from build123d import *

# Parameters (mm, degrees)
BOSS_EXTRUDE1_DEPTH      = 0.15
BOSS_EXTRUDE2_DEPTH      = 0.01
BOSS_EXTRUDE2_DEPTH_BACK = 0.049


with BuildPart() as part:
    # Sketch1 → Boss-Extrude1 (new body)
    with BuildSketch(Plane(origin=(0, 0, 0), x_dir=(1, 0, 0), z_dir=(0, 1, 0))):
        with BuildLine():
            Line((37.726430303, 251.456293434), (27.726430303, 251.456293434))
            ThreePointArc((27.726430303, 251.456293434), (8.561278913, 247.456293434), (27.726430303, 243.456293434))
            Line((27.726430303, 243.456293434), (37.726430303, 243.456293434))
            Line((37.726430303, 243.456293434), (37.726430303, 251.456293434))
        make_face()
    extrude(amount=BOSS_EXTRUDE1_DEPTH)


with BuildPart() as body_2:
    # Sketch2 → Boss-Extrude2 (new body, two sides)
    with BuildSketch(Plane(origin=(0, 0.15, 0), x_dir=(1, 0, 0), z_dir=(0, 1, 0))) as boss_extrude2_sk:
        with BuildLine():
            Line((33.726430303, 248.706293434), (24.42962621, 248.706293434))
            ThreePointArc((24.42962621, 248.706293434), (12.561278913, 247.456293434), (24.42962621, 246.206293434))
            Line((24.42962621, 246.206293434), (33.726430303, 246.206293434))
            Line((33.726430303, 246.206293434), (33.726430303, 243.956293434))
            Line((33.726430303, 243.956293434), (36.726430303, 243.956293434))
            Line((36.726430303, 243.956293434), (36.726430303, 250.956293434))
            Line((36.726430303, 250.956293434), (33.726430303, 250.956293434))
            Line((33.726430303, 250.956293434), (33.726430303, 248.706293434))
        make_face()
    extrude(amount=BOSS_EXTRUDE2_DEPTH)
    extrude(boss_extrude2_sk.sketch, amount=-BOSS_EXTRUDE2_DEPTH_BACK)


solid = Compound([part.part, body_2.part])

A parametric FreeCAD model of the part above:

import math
import FreeCAD as App
import Part
import Sketcher

doc = App.newDocument("Part")
body = doc.addObject("PartDesign::Body", "Body")

# Sketch on XZ plane
sketch1 = body.newObject("Sketcher::SketchObject", "Sketch")
sketch1.AttachmentSupport = (doc.getObject("XZ_Plane"), [""])
sketch1.MapMode = "FlatFace"
sketch1.addGeometry(Part.LineSegment(App.Vector(38, -251, 0), App.Vector(28, -251, 0)), False)
sketch1.addGeometry(Part.ArcOfCircle(Part.Circle(App.Vector(19, -247, 0), App.Vector(0, 0, 1), 10), math.radians(24), math.radians(336)), False)
sketch1.addGeometry(Part.LineSegment(App.Vector(28, -243, 0), App.Vector(38, -243, 0)), False)
sketch1.addGeometry(Part.LineSegment(App.Vector(38, -243, 0), App.Vector(38, -251, 0)), False)
sketch1.addConstraint(Sketcher.Constraint("Coincident", 0, 2, 1, 2))
sketch1.addConstraint(Sketcher.Constraint("Coincident", 1, 1, 2, 1))
sketch1.addConstraint(Sketcher.Constraint("Coincident", 2, 2, 3, 1))
sketch1.addConstraint(Sketcher.Constraint("Coincident", 3, 2, 0, 1))
sketch1.addConstraint(Sketcher.Constraint("Horizontal", 0))
sketch1.addConstraint(Sketcher.Constraint("Horizontal", 2))
sketch1.addConstraint(Sketcher.Constraint("Vertical", 3))
sketch1.addConstraint(Sketcher.Constraint("Vertical", 0, 2, 1, 1))
sketch1.addConstraint(Sketcher.Constraint("Radius", 1, 10.0))
sketch1.addConstraint(Sketcher.Constraint("DistanceX", 0, 2, 0, 1, 10.0))
sketch1.addConstraint(Sketcher.Constraint("DistanceY", 3, 2, 3, 1, 8.0))
sketch1.addConstraint(Sketcher.Constraint("DistanceX", -1, 1, 1, 3, 18.561279))
sketch1.addConstraint(Sketcher.Constraint("DistanceY", 1, 3, -1, 1, 247.456293))
pad1 = body.newObject("PartDesign::Pad", "Pad")
pad1.Profile = sketch1
pad1.Length = 0.15
pad1.Reversed = True
body2 = doc.addObject("PartDesign::Body", "Body001")

# Sketch on XZ plane
sketch2 = body2.newObject("Sketcher::SketchObject", "Sketch001")
sketch2.AttachmentSupport = (doc.getObject("XZ_Plane001"), [""])
sketch2.MapMode = "FlatFace"
sketch2.AttachmentOffset = App.Placement(App.Vector(0, 0, -0.15), App.Rotation())
sketch2.addGeometry(Part.LineSegment(App.Vector(33.7, -248.7, 0), App.Vector(24.4, -248.7, 0)), False)
sketch2.addGeometry(Part.ArcOfCircle(Part.Circle(App.Vector(18.6, -247.5, 0), App.Vector(0, 0, 1), 6), math.radians(12), math.radians(348)), False)
sketch2.addGeometry(Part.LineSegment(App.Vector(24.4, -246.2, 0), App.Vector(33.7, -246.2, 0)), False)
sketch2.addGeometry(Part.LineSegment(App.Vector(33.7, -246.2, 0), App.Vector(33.7, -244, 0)), False)
sketch2.addGeometry(Part.LineSegment(App.Vector(33.7, -244, 0), App.Vector(36.7, -244, 0)), False)
sketch2.addGeometry(Part.LineSegment(App.Vector(36.7, -244, 0), App.Vector(36.7, -251, 0)), False)
sketch2.addGeometry(Part.LineSegment(App.Vector(36.7, -251, 0), App.Vector(33.7, -251, 0)), False)
sketch2.addGeometry(Part.LineSegment(App.Vector(33.7, -251, 0), App.Vector(33.7, -248.7, 0)), False)
sketch2.addConstraint(Sketcher.Constraint("Coincident", 0, 2, 1, 2))
sketch2.addConstraint(Sketcher.Constraint("Coincident", 1, 1, 2, 1))
sketch2.addConstraint(Sketcher.Constraint("Coincident", 2, 2, 3, 1))
sketch2.addConstraint(Sketcher.Constraint("Coincident", 3, 2, 4, 1))
sketch2.addConstraint(Sketcher.Constraint("Coincident", 4, 2, 5, 1))
sketch2.addConstraint(Sketcher.Constraint("Coincident", 5, 2, 6, 1))
sketch2.addConstraint(Sketcher.Constraint("Coincident", 6, 2, 7, 1))
sketch2.addConstraint(Sketcher.Constraint("Coincident", 7, 2, 0, 1))
sketch2.addConstraint(Sketcher.Constraint("Horizontal", 0))
sketch2.addConstraint(Sketcher.Constraint("Horizontal", 2))
sketch2.addConstraint(Sketcher.Constraint("Vertical", 3))
sketch2.addConstraint(Sketcher.Constraint("Horizontal", 4))
sketch2.addConstraint(Sketcher.Constraint("Vertical", 5))
sketch2.addConstraint(Sketcher.Constraint("Horizontal", 6))
sketch2.addConstraint(Sketcher.Constraint("Vertical", 7))
sketch2.addConstraint(Sketcher.Constraint("Vertical", 0, 2, 1, 1))
sketch2.addConstraint(Sketcher.Constraint("Vertical", 3, 2, 6, 2))
sketch2.addConstraint(Sketcher.Constraint("Equal", 3, 7))
sketch2.addConstraint(Sketcher.Constraint("Radius", 1, 6.0))
sketch2.addConstraint(Sketcher.Constraint("DistanceX", 4, 1, 4, 2, 3.0))
sketch2.addConstraint(Sketcher.Constraint("DistanceY", 5, 2, 5, 1, 7.0))
sketch2.addConstraint(Sketcher.Constraint("DistanceY", 3, 1, 3, 2, 2.25))
sketch2.addConstraint(Sketcher.Constraint("DistanceX", 0, 2, 0, 1, 9.296804))
sketch2.addConstraint(Sketcher.Constraint("DistanceX", -1, 1, 1, 3, 18.561279))
sketch2.addConstraint(Sketcher.Constraint("DistanceY", 1, 3, -1, 1, 247.456293))
pad2 = body2.newObject("PartDesign::Pad", "Pad001")
pad2.Profile = sketch2
pad2.Type = "TwoLengths"
pad2.Length = 0.01
pad2.Length2 = 0.049
pad2.Reversed = True

doc.recompute()
